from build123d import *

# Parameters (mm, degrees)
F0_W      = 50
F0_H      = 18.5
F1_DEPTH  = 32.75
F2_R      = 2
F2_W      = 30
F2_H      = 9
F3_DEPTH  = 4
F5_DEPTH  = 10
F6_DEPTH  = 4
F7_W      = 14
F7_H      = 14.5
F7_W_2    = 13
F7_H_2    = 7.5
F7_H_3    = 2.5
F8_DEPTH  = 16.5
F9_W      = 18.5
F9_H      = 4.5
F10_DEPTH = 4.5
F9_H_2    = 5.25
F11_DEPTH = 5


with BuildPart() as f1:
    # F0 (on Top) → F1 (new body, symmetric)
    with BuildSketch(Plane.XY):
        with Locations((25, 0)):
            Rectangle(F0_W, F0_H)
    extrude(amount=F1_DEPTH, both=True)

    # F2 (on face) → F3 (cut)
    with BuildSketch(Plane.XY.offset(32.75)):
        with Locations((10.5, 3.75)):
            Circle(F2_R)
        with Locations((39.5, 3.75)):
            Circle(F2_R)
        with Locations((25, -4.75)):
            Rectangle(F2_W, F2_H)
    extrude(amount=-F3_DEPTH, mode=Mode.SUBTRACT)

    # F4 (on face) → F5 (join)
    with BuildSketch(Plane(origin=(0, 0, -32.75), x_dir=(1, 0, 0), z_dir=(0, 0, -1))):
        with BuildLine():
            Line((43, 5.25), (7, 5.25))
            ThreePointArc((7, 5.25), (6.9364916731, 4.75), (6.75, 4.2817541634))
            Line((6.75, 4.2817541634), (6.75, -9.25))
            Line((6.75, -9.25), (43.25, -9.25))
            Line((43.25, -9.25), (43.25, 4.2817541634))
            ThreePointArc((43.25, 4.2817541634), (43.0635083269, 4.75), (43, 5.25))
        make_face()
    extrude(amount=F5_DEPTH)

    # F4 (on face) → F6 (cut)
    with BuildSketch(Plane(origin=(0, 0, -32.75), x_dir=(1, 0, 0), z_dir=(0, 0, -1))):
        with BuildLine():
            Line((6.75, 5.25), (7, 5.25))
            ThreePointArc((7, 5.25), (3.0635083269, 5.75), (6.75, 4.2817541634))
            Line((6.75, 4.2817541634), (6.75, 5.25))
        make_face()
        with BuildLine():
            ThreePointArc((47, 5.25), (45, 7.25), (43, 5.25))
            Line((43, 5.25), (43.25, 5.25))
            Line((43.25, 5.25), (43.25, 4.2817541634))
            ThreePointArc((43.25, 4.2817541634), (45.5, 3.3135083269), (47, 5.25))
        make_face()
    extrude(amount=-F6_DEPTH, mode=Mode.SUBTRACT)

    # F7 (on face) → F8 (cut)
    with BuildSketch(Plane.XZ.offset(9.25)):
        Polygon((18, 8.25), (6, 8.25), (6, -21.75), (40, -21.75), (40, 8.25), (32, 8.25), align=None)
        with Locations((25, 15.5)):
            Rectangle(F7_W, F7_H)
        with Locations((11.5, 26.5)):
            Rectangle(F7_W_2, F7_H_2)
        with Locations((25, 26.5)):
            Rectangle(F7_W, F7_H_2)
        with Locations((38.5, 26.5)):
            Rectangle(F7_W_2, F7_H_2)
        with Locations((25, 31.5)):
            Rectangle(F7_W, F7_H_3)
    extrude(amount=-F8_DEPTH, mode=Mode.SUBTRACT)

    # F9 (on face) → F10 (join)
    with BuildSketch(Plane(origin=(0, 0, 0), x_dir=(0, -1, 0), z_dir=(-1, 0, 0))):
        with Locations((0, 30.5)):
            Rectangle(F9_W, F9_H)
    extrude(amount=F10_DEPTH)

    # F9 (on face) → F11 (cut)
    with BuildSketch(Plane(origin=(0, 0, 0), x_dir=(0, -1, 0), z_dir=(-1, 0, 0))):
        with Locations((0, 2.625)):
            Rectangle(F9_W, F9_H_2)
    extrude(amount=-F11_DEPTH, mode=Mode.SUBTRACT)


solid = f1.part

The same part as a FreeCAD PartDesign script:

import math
import FreeCAD as App
import Part
import Sketcher

doc = App.newDocument("Part")
params = doc.addObject("Spreadsheet::Sheet", "Params")
for row, (alias, value) in enumerate([
    ("sketch1_width", "50 mm"),
    ("sketch1_height", "18.5 mm"),
    ("pad1_length", "65.5 mm"),
    ("sketch2_diameter", "4 mm"),
    ("sketch2_width", "30 mm"),
    ("sketch2_height", "9 mm"),
    ("pocket1_length", "4 mm"),
    ("sketch3_radius", "2 mm"),
    ("sketch3_width", "36 mm"),
    ("sketch3_width2", "36.5 mm"),
    ("pad2_length", "10 mm"),
    ("sketch4_radius", "2 mm"),
    ("sketch4_width", "0.25 mm"),
    ("pocket2_length", "4 mm"),
    ("sketch5_width", "34 mm"),
    ("sketch5_width2", "8 mm"),
    ("sketch5_width3", "13 mm"),
    ("sketch5_width4", "14 mm"),
    ("sketch5_height", "30 mm"),
    ("pocket3_length", "16.5 mm"),
    ("sketch6_width", "18.5 mm"),
    ("sketch6_height", "4.5 mm"),
    ("pad3_length", "4.5 mm"),
    ("sketch7_width", "18.5 mm"),
    ("sketch7_height", "5.25 mm"),
    ("pocket4_length", "5 mm"),
], start=1):
    params.set(f"A{row}", alias)
    params.set(f"B{row}", "=" + value)
    params.setAlias(f"B{row}", alias)

body = doc.addObject("PartDesign::Body", "Body")

# Sketch on XY plane
sketch1 = doc.addObject("Sketcher::SketchObject", "Sketch")
body.addObject(sketch1)
sketch1.AttachmentSupport = (doc.XY_Plane, [""])
sketch1.MapMode = "FlatFace"
sketch1.addGeometry([
    Part.LineSegment(App.Vector(0, 9.25, 0), App.Vector(0, -9.25, 0)),
    Part.LineSegment(App.Vector(0, -9.25, 0), App.Vector(50, -9.25, 0)),
    Part.LineSegment(App.Vector(50, -9.25, 0), App.Vector(50, 9.25, 0)),
    Part.LineSegment(App.Vector(50, 9.25, 0), App.Vector(0, 9.25, 0)),
], False)
sketch1.addConstraint([
    Sketcher.Constraint("Coincident", 0, 2, 1, 1),
    Sketcher.Constraint("Coincident", 1, 2, 2, 1),
    Sketcher.Constraint("Coincident", 2, 2, 3, 1),
    Sketcher.Constraint("Coincident", 3, 2, 0, 1),
    Sketcher.Constraint("Vertical", 0),
    Sketcher.Constraint("Horizontal", 1),
    Sketcher.Constraint("Vertical", 2),
    Sketcher.Constraint("Horizontal", 3),
    Sketcher.Constraint("Symmetric", 0, 2, 3, 2, -1, 1),
    Sketcher.Constraint("DistanceX", 1, 1, 1, 2, 50.0),
    Sketcher.Constraint("DistanceY", 0, 2, 0, 1, 18.5),
])
sketch1.setExpression("Constraints[9]", "Params.sketch1_width")
sketch1.setExpression("Constraints[10]", "Params.sketch1_height")
pad1 = doc.addObject("PartDesign::Pad", "Pad")
body.addObject(pad1)
pad1.Profile = sketch1
pad1.setExpression("Length", "Params.pad1_length")
pad1.Midplane = True

# Sketch on XY plane
sketch2 = doc.addObject("Sketcher::SketchObject", "Sketch001")
body.addObject(sketch2)
sketch2.AttachmentSupport = (doc.XY_Plane, [""])
sketch2.MapMode = "FlatFace"
sketch2.AttachmentOffset = App.Placement(App.Vector(0, 0, 32.75), App.Rotation())
sketch2.addGeometry([
    Part.Circle(App.Vector(10.5, 3.75, 0), App.Vector(0, 0, 1), 2),  # 0
    Part.Circle(App.Vector(39.5, 3.75, 0), App.Vector(0, 0, 1), 2),  # 1
    Part.LineSegment(App.Vector(10, -0.25, 0), App.Vector(10, -9.25, 0)),  # 2
    Part.LineSegment(App.Vector(10, -9.25, 0), App.Vector(40, -9.25, 0)),  # 3
    Part.LineSegment(App.Vector(40, -9.25, 0), App.Vector(40, -0.25, 0)),  # 4
    Part.LineSegment(App.Vector(40, -0.25, 0), App.Vector(10, -0.25, 0)),  # 5
], False)
sketch2.addConstraint([
    Sketcher.Constraint("Coincident", 2, 2, 3, 1),
    Sketcher.Constraint("Coincident", 3, 2, 4, 1),
    Sketcher.Constraint("Coincident", 4, 2, 5, 1),
    Sketcher.Constraint("Coincident", 5, 2, 2, 1),
    Sketcher.Constraint("Vertical", 2),
    Sketcher.Constraint("Horizontal", 3),
    Sketcher.Constraint("Vertical", 4),
    Sketcher.Constraint("Horizontal", 5),
    Sketcher.Constraint("Equal", 0, 1),
    Sketcher.Constraint("Horizontal", 0, 3, 1, 3),
    Sketcher.Constraint("Diameter", 0, 4.0),
    Sketcher.Constraint("DistanceX", 3, 1, 3, 2, 30.0),
    Sketcher.Constraint("DistanceY", 2, 2, 2, 1, 9.0),
    Sketcher.Constraint("DistanceX", -1, 1, 2, 2, 10.0),
    Sketcher.Constraint("DistanceX", 0, 3, 1, 3, 29.0),
    Sketcher.Constraint("DistanceY", 2, 2, 0, 3, 13.0),
    Sketcher.Constraint("DistanceX", -1, 1, 0, 3, 10.5),
    Sketcher.Constraint("DistanceY", -1, 1, 0, 3, 3.75),
])
sketch2.setExpression("Constraints[10]", "Params.sketch2_diameter")
sketch2.setExpression("Constraints[11]", "Params.sketch2_width")
sketch2.setExpression("Constraints[12]", "Params.sketch2_height")
pocket1 = doc.addObject("PartDesign::Pocket", "Pocket")
body.addObject(pocket1)
pocket1.Profile = sketch2
pocket1.setExpression("Length", "Params.pocket1_length")

# Sketch on XY plane
sketch3 = doc.addObject("Sketcher::SketchObject", "Sketch002")
body.addObject(sketch3)
sketch3.AttachmentSupport = (doc.XY_Plane, [""])
sketch3.MapMode = "FlatFace"
sketch3.AttachmentOffset = App.Placement(App.Vector(0, 0, -32.75), App.Rotation())
sketch3.addGeometry([
    Part.LineSegment(App.Vector(43, -5.25, 0), App.Vector(7, -5.25, 0)),  # 0
    Part.ArcOfCircle(Part.Circle(App.Vector(5, -5.25, 0), App.Vector(0, 0, 1), 2), math.radians(0), math.radians(28.955024)),  # 1
    Part.LineSegment(App.Vector(6.75, -4.281754, 0), App.Vector(6.75, 9.25, 0)),  # 2
    Part.LineSegment(App.Vector(6.75, 9.25, 0), App.Vector(43.25, 9.25, 0)),  # 3
    Part.LineSegment(App.Vector(43.25, 9.25, 0), App.Vector(43.25, -4.281754, 0)),  # 4
    Part.ArcOfCircle(Part.Circle(App.Vector(45, -5.25, 0), App.Vector(0, 0, 1), 2), math.radians(151.044976), math.radians(180)),  # 5
], False)
sketch3.addConstraint([
    Sketcher.Constraint("Coincident", 0, 2, 1, 1),
    Sketcher.Constraint("Coincident", 1, 2, 2, 1),
    Sketcher.Constraint("Coincident", 2, 2, 3, 1),
    Sketcher.Constraint("Coincident", 3, 2, 4, 1),
    Sketcher.Constraint("Coincident", 4, 2, 5, 1),
    Sketcher.Constraint("Coincident", 5, 2, 0, 1),
    Sketcher.Constraint("Horizontal", 0),
    Sketcher.Constraint("Vertical", 2),
    Sketcher.Constraint("Horizontal", 3),
    Sketcher.Constraint("Vertical", 4),
    Sketcher.Constraint("Equal", 1, 5),
    Sketcher.Constraint("Horizontal", 1, 3, 5, 3),
    Sketcher.Constraint("Horizontal", 5, 3, 0, 2),
    Sketcher.Constraint("Horizontal", 1, 2, 4, 2),
    Sketcher.Constraint("Radius", 1, 2.0),
    Sketcher.Constraint("DistanceX", 0, 2, 0, 1, 36.0),
    Sketcher.Constraint("DistanceX", 3, 1, 3, 2, 36.5),
    Sketcher.Constraint("DistanceX", -1, 1, 1, 3, 5.0),
    Sketcher.Constraint("DistanceY", 0, 2, 2, 2, 14.5),
    Sketcher.Constraint("DistanceY", 1, 3, -1, 1, 5.25),
])
sketch3.setExpression("Constraints[14]", "Params.sketch3_radius")
sketch3.setExpression("Constraints[15]", "Params.sketch3_width")
sketch3.setExpression("Constraints[16]", "Params.sketch3_width2")
pad2 = doc.addObject("PartDesign::Pad", "Pad001")
body.addObject(pad2)
pad2.Profile = sketch3
pad2.setExpression("Length", "Params.pad2_length")
pad2.Reversed = True

# Sketch on XY plane
sketch4 = doc.addObject("Sketcher::SketchObject", "Sketch003")
body.addObject(sketch4)
sketch4.AttachmentSupport = (doc.XY_Plane, [""])
sketch4.MapMode = "FlatFace"
sketch4.AttachmentOffset = App.Placement(App.Vector(0, 0, -32.75), App.Rotation())
sketch4.addGeometry([
    Part.LineSegment(App.Vector(6.75, -5.25, 0), App.Vector(7, -5.25, 0)),  # 0
    Part.ArcOfCircle(Part.Circle(App.Vector(5, -5.25, 0), App.Vector(0, 0, 1), 2), math.radians(28.955024), math.radians(360)),  # 1
    Part.LineSegment(App.Vector(6.75, -4.281754, 0), App.Vector(6.75, -5.25, 0)),  # 2
    Part.ArcOfCircle(Part.Circle(App.Vector(45, -5.25, 0), App.Vector(0, 0, 1), 2), math.radians(180), math.radians(360)),  # 3
    Part.LineSegment(App.Vector(43, -5.25, 0), App.Vector(43.25, -5.25, 0)),  # 4
    Part.LineSegment(App.Vector(43.25, -5.25, 0), App.Vector(43.25, -4.281754, 0)),  # 5
    Part.ArcOfCircle(Part.Circle(App.Vector(45, -5.25, 0), App.Vector(0, 0, 1), 2), math.radians(0), math.radians(151.044976)),  # 6
], False)
sketch4.addConstraint([
    Sketcher.Constraint("Coincident", 0, 2, 1, 2),
    Sketcher.Constraint("Coincident", 1, 1, 2, 1),
    Sketcher.Constraint("Coincident", 2, 2, 0, 1),
    Sketcher.Constraint("Coincident", 3, 1, 4, 1),
    Sketcher.Constraint("Coincident", 4, 2, 5, 1),
    Sketcher.Constraint("Coincident", 5, 2, 6, 2),
    Sketcher.Constraint("Tangent", 6, 1, 3, 2),
    Sketcher.Constraint("Horizontal", 0),
    Sketcher.Constraint("Vertical", 2),
    Sketcher.Constraint("Horizontal", 4),
    Sketcher.Constraint("Vertical", 5),
    Sketcher.Constraint("Equal", 1, 3),
    Sketcher.Constraint("Equal", 3, 6),
    Sketcher.Constraint("Horizontal", 1, 3, 3, 3),
    Sketcher.Constraint("Horizontal", 6, 3, 0, 2),
    Sketcher.Constraint("Horizontal", 2, 2, 3, 1),
    Sketcher.Constraint("Horizontal", 1, 1, 5, 2),
    Sketcher.Constraint("Horizontal", 4, 2, 6, 1),
    Sketcher.Constraint("Radius", 1, 2.0),
    Sketcher.Constraint("DistanceX", -1, 1, 1, 3, 5.0),
    Sketcher.Constraint("DistanceX", -1, 1, 3, 3, 45.0),
    Sketcher.Constraint("DistanceX", 0, 1, 0, 2, 0.25),
    Sketcher.Constraint("DistanceY", 1, 3, -1, 1, 5.25),
])
sketch4.setExpression("Constraints[18]", "Params.sketch4_radius")
sketch4.setExpression("Constraints[21]", "Params.sketch4_width")
pocket2 = doc.addObject("PartDesign::Pocket", "Pocket001")
body.addObject(pocket2)
pocket2.Profile = sketch4
pocket2.setExpression("Length", "Params.pocket2_length")
pocket2.Reversed = True

# Sketch on XZ plane
sketch5 = doc.addObject("Sketcher::SketchObject", "Sketch004")
body.addObject(sketch5)
sketch5.AttachmentSupport = (doc.XZ_Plane, [""])
sketch5.MapMode = "FlatFace"
sketch5.AttachmentOffset = App.Placement(App.Vector(0, 0, 9.25), App.Rotation())
sketch5.addGeometry([
    Part.LineSegment(App.Vector(6, 8.25, 0), App.Vector(6, -21.75, 0)),  # 0
    Part.LineSegment(App.Vector(6, -21.75, 0), App.Vector(40, -21.75, 0)),  # 1
    Part.LineSegment(App.Vector(40, -21.75, 0), App.Vector(40, 8.25, 0)),  # 2
    Part.LineSegment(App.Vector(40, 8.25, 0), App.Vector(32, 8.25, 0)),  # 3
    Part.LineSegment(App.Vector(32, 8.25, 0), App.Vector(32, 22.75, 0)),  # 4
    Part.LineSegment(App.Vector(32, 22.75, 0), App.Vector(45, 22.75, 0)),  # 5
    Part.LineSegment(App.Vector(45, 22.75, 0), App.Vector(45, 30.25, 0)),  # 6
    Part.LineSegment(App.Vector(45, 30.25, 0), App.Vector(32, 30.25, 0)),  # 7
    Part.LineSegment(App.Vector(32, 30.25, 0), App.Vector(32, 32.75, 0)),  # 8
    Part.LineSegment(App.Vector(32, 32.75, 0), App.Vector(18, 32.75, 0)),  # 9
    Part.LineSegment(App.Vector(18, 32.75, 0), App.Vector(18, 30.25, 0)),  # 10
    Part.LineSegment(App.Vector(18, 30.25, 0), App.Vector(5, 30.25, 0)),  # 11
    Part.LineSegment(App.Vector(5, 30.25, 0), App.Vector(5, 22.75, 0)),  # 12
    Part.LineSegment(App.Vector(5, 22.75, 0), App.Vector(18, 22.75, 0)),  # 13
    Part.LineSegment(App.Vector(18, 22.75, 0), App.Vector(18, 8.25, 0)),  # 14
    Part.LineSegment(App.Vector(18, 8.25, 0), App.Vector(6, 8.25, 0)),  # 15
], False)
sketch5.addConstraint([
    Sketcher.Constraint("Coincident", 0, 2, 1, 1),
    Sketcher.Constraint("Coincident", 1, 2, 2, 1),
    Sketcher.Constraint("Coincident", 2, 2, 3, 1),
    Sketcher.Constraint("Coincident", 3, 2, 4, 1),
    Sketcher.Constraint("Coincident", 4, 2, 5, 1),
    Sketcher.Constraint("Coincident", 5, 2, 6, 1),
    Sketcher.Constraint("Coincident", 6, 2, 7, 1),
    Sketcher.Constraint("Coincident", 7, 2, 8, 1),
    Sketcher.Constraint("Coincident", 8, 2, 9, 1),
    Sketcher.Constraint("Coincident", 9, 2, 10, 1),
    Sketcher.Constraint("Coincident", 10, 2, 11, 1),
    Sketcher.Constraint("Coincident", 11, 2, 12, 1),
    Sketcher.Constraint("Coincident", 12, 2, 13, 1),
    Sketcher.Constraint("Coincident", 13, 2, 14, 1),
    Sketcher.Constraint("Coincident", 14, 2, 15, 1),
    Sketcher.Constraint("Coincident", 15, 2, 0, 1),
    Sketcher.Constraint("Vertical", 0),
    Sketcher.Constraint("Horizontal", 1),
    Sketcher.Constraint("Vertical", 2),
    Sketcher.Constraint("Horizontal", 3),
    Sketcher.Constraint("Vertical", 4),
    Sketcher.Constraint("Horizontal", 5),
    Sketcher.Constraint("Vertical", 6),
    Sketcher.Constraint("Horizontal", 7),
    Sketcher.Constraint("Vertical", 8),
    Sketcher.Constraint("Horizontal", 9),
    Sketcher.Constraint("Vertical", 10),
    Sketcher.Constraint("Horizontal", 11),
    Sketcher.Constraint("Vertical", 12),
    Sketcher.Constraint("Horizontal", 13),
    Sketcher.Constraint("Vertical", 14),
    Sketcher.Constraint("Horizontal", 15),
    Sketcher.Constraint("Horizontal", 7, 2, 10, 2),
    Sketcher.Constraint("Horizontal", 5, 2, 12, 2),
    Sketcher.Constraint("Horizontal", 3, 2, 14, 2),
    Sketcher.Constraint("Vertical", 4, 2, 7, 2),
    Sketcher.Constraint("Vertical", 10, 2, 13, 2),
    Sketcher.Constraint("Equal", 7, 11),
    Sketcher.Constraint("DistanceX", 1, 1, 1, 2, 34.0),
    Sketcher.Constraint("DistanceX", 3, 2, 3, 1, 8.0),
    Sketcher.Constraint("DistanceX", 5, 1, 5, 2, 13.0),
    Sketcher.Constraint("DistanceX", 9, 2, 9, 1, 14.0),
    Sketcher.Constraint("DistanceY", 0, 2, 0, 1, 30.0),
    Sketcher.Constraint("DistanceY", 4, 1, 4, 2, 14.5),
    Sketcher.Constraint("DistanceY", 6, 1, 6, 2, 7.5),
    Sketcher.Constraint("DistanceY", 8, 1, 8, 2, 2.5),
    Sketcher.Constraint("DistanceX", -1, 1, 0, 2, 6.0),
    Sketcher.Constraint("DistanceY", 0, 2, -1, 1, 21.75),
])
sketch5.setExpression("Constraints[38]", "Params.sketch5_width")
sketch5.setExpression("Constraints[39]", "Params.sketch5_width2")
sketch5.setExpression("Constraints[40]", "Params.sketch5_width3")
sketch5.setExpression("Constraints[41]", "Params.sketch5_width4")
sketch5.setExpression("Constraints[42]", "Params.sketch5_height")
pocket3 = doc.addObject("PartDesign::Pocket", "Pocket002")
body.addObject(pocket3)
pocket3.Profile = sketch5
pocket3.setExpression("Length", "Params.pocket3_length")

# Sketch on YZ plane
sketch6 = doc.addObject("Sketcher::SketchObject", "Sketch005")
body.addObject(sketch6)
sketch6.AttachmentSupport = (doc.YZ_Plane, [""])
sketch6.MapMode = "FlatFace"
sketch6.addGeometry([
    Part.LineSegment(App.Vector(9.25, 32.75, 0), App.Vector(9.25, 28.25, 0)),
    Part.LineSegment(App.Vector(9.25, 28.25, 0), App.Vector(-9.25, 28.25, 0)),
    Part.LineSegment(App.Vector(-9.25, 28.25, 0), App.Vector(-9.25, 32.75, 0)),
    Part.LineSegment(App.Vector(-9.25, 32.75, 0), App.Vector(9.25, 32.75, 0)),
], False)
sketch6.addConstraint([
    Sketcher.Constraint("Coincident", 0, 2, 1, 1),
    Sketcher.Constraint("Coincident", 1, 2, 2, 1),
    Sketcher.Constraint("Coincident", 2, 2, 3, 1),
    Sketcher.Constraint("Coincident", 3, 2, 0, 1),
    Sketcher.Constraint("Vertical", 0),
    Sketcher.Constraint("Horizontal", 1),
    Sketcher.Constraint("Vertical", 2),
    Sketcher.Constraint("Horizontal", 3),
    Sketcher.Constraint("DistanceX", 1, 2, 1, 1, 18.5),
    Sketcher.Constraint("DistanceY", 0, 2, 0, 1, 4.5),
    Sketcher.Constraint("DistanceX", -1, 1, 0, 2, 9.25),
    Sketcher.Constraint("DistanceY", -1, 1, 0, 2, 28.25),
])
sketch6.setExpression("Constraints[8]", "Params.sketch6_width")
sketch6.setExpression("Constraints[9]", "Params.sketch6_height")
pad3 = doc.addObject("PartDesign::Pad", "Pad002")
body.addObject(pad3)
pad3.Profile = sketch6
pad3.setExpression("Length", "Params.pad3_length")
pad3.Reversed = True

# Sketch on YZ plane
sketch7 = doc.addObject("Sketcher::SketchObject", "Sketch006")
body.addObject(sketch7)
sketch7.AttachmentSupport = (doc.YZ_Plane, [""])
sketch7.MapMode = "FlatFace"
sketch7.addGeometry([
    Part.LineSegment(App.Vector(9.25, 5.25, 0), App.Vector(9.25, 0, 0)),
    Part.LineSegment(App.Vector(9.25, 0, 0), App.Vector(-9.25, 0, 0)),
    Part.LineSegment(App.Vector(-9.25, 0, 0), App.Vector(-9.25, 5.25, 0)),
    Part.LineSegment(App.Vector(-9.25, 5.25, 0), App.Vector(9.25, 5.25, 0)),
], False)
sketch7.addConstraint([
    Sketcher.Constraint("Coincident", 0, 2, 1, 1),
    Sketcher.Constraint("Coincident", 1, 2, 2, 1),
    Sketcher.Constraint("Coincident", 2, 2, 3, 1),
    Sketcher.Constraint("Coincident", 3, 2, 0, 1),
    Sketcher.Constraint("Vertical", 0),
    Sketcher.Constraint("Horizontal", 1),
    Sketcher.Constraint("Vertical", 2),
    Sketcher.Constraint("Horizontal", 3),
    Sketcher.Constraint("Symmetric", 0, 2, 1, 2, -1, 1),
    Sketcher.Constraint("DistanceX", 1, 2, 1, 1, 18.5),
    Sketcher.Constraint("DistanceY", 0, 2, 0, 1, 5.25),
])
sketch7.setExpression("Constraints[9]", "Params.sketch7_width")
sketch7.setExpression("Constraints[10]", "Params.sketch7_height")
pocket4 = doc.addObject("PartDesign::Pocket", "Pocket003")
body.addObject(pocket4)
pocket4.Profile = sketch7
pocket4.setExpression("Length", "Params.pocket4_length")
pocket4.Reversed = True

doc.recompute()
